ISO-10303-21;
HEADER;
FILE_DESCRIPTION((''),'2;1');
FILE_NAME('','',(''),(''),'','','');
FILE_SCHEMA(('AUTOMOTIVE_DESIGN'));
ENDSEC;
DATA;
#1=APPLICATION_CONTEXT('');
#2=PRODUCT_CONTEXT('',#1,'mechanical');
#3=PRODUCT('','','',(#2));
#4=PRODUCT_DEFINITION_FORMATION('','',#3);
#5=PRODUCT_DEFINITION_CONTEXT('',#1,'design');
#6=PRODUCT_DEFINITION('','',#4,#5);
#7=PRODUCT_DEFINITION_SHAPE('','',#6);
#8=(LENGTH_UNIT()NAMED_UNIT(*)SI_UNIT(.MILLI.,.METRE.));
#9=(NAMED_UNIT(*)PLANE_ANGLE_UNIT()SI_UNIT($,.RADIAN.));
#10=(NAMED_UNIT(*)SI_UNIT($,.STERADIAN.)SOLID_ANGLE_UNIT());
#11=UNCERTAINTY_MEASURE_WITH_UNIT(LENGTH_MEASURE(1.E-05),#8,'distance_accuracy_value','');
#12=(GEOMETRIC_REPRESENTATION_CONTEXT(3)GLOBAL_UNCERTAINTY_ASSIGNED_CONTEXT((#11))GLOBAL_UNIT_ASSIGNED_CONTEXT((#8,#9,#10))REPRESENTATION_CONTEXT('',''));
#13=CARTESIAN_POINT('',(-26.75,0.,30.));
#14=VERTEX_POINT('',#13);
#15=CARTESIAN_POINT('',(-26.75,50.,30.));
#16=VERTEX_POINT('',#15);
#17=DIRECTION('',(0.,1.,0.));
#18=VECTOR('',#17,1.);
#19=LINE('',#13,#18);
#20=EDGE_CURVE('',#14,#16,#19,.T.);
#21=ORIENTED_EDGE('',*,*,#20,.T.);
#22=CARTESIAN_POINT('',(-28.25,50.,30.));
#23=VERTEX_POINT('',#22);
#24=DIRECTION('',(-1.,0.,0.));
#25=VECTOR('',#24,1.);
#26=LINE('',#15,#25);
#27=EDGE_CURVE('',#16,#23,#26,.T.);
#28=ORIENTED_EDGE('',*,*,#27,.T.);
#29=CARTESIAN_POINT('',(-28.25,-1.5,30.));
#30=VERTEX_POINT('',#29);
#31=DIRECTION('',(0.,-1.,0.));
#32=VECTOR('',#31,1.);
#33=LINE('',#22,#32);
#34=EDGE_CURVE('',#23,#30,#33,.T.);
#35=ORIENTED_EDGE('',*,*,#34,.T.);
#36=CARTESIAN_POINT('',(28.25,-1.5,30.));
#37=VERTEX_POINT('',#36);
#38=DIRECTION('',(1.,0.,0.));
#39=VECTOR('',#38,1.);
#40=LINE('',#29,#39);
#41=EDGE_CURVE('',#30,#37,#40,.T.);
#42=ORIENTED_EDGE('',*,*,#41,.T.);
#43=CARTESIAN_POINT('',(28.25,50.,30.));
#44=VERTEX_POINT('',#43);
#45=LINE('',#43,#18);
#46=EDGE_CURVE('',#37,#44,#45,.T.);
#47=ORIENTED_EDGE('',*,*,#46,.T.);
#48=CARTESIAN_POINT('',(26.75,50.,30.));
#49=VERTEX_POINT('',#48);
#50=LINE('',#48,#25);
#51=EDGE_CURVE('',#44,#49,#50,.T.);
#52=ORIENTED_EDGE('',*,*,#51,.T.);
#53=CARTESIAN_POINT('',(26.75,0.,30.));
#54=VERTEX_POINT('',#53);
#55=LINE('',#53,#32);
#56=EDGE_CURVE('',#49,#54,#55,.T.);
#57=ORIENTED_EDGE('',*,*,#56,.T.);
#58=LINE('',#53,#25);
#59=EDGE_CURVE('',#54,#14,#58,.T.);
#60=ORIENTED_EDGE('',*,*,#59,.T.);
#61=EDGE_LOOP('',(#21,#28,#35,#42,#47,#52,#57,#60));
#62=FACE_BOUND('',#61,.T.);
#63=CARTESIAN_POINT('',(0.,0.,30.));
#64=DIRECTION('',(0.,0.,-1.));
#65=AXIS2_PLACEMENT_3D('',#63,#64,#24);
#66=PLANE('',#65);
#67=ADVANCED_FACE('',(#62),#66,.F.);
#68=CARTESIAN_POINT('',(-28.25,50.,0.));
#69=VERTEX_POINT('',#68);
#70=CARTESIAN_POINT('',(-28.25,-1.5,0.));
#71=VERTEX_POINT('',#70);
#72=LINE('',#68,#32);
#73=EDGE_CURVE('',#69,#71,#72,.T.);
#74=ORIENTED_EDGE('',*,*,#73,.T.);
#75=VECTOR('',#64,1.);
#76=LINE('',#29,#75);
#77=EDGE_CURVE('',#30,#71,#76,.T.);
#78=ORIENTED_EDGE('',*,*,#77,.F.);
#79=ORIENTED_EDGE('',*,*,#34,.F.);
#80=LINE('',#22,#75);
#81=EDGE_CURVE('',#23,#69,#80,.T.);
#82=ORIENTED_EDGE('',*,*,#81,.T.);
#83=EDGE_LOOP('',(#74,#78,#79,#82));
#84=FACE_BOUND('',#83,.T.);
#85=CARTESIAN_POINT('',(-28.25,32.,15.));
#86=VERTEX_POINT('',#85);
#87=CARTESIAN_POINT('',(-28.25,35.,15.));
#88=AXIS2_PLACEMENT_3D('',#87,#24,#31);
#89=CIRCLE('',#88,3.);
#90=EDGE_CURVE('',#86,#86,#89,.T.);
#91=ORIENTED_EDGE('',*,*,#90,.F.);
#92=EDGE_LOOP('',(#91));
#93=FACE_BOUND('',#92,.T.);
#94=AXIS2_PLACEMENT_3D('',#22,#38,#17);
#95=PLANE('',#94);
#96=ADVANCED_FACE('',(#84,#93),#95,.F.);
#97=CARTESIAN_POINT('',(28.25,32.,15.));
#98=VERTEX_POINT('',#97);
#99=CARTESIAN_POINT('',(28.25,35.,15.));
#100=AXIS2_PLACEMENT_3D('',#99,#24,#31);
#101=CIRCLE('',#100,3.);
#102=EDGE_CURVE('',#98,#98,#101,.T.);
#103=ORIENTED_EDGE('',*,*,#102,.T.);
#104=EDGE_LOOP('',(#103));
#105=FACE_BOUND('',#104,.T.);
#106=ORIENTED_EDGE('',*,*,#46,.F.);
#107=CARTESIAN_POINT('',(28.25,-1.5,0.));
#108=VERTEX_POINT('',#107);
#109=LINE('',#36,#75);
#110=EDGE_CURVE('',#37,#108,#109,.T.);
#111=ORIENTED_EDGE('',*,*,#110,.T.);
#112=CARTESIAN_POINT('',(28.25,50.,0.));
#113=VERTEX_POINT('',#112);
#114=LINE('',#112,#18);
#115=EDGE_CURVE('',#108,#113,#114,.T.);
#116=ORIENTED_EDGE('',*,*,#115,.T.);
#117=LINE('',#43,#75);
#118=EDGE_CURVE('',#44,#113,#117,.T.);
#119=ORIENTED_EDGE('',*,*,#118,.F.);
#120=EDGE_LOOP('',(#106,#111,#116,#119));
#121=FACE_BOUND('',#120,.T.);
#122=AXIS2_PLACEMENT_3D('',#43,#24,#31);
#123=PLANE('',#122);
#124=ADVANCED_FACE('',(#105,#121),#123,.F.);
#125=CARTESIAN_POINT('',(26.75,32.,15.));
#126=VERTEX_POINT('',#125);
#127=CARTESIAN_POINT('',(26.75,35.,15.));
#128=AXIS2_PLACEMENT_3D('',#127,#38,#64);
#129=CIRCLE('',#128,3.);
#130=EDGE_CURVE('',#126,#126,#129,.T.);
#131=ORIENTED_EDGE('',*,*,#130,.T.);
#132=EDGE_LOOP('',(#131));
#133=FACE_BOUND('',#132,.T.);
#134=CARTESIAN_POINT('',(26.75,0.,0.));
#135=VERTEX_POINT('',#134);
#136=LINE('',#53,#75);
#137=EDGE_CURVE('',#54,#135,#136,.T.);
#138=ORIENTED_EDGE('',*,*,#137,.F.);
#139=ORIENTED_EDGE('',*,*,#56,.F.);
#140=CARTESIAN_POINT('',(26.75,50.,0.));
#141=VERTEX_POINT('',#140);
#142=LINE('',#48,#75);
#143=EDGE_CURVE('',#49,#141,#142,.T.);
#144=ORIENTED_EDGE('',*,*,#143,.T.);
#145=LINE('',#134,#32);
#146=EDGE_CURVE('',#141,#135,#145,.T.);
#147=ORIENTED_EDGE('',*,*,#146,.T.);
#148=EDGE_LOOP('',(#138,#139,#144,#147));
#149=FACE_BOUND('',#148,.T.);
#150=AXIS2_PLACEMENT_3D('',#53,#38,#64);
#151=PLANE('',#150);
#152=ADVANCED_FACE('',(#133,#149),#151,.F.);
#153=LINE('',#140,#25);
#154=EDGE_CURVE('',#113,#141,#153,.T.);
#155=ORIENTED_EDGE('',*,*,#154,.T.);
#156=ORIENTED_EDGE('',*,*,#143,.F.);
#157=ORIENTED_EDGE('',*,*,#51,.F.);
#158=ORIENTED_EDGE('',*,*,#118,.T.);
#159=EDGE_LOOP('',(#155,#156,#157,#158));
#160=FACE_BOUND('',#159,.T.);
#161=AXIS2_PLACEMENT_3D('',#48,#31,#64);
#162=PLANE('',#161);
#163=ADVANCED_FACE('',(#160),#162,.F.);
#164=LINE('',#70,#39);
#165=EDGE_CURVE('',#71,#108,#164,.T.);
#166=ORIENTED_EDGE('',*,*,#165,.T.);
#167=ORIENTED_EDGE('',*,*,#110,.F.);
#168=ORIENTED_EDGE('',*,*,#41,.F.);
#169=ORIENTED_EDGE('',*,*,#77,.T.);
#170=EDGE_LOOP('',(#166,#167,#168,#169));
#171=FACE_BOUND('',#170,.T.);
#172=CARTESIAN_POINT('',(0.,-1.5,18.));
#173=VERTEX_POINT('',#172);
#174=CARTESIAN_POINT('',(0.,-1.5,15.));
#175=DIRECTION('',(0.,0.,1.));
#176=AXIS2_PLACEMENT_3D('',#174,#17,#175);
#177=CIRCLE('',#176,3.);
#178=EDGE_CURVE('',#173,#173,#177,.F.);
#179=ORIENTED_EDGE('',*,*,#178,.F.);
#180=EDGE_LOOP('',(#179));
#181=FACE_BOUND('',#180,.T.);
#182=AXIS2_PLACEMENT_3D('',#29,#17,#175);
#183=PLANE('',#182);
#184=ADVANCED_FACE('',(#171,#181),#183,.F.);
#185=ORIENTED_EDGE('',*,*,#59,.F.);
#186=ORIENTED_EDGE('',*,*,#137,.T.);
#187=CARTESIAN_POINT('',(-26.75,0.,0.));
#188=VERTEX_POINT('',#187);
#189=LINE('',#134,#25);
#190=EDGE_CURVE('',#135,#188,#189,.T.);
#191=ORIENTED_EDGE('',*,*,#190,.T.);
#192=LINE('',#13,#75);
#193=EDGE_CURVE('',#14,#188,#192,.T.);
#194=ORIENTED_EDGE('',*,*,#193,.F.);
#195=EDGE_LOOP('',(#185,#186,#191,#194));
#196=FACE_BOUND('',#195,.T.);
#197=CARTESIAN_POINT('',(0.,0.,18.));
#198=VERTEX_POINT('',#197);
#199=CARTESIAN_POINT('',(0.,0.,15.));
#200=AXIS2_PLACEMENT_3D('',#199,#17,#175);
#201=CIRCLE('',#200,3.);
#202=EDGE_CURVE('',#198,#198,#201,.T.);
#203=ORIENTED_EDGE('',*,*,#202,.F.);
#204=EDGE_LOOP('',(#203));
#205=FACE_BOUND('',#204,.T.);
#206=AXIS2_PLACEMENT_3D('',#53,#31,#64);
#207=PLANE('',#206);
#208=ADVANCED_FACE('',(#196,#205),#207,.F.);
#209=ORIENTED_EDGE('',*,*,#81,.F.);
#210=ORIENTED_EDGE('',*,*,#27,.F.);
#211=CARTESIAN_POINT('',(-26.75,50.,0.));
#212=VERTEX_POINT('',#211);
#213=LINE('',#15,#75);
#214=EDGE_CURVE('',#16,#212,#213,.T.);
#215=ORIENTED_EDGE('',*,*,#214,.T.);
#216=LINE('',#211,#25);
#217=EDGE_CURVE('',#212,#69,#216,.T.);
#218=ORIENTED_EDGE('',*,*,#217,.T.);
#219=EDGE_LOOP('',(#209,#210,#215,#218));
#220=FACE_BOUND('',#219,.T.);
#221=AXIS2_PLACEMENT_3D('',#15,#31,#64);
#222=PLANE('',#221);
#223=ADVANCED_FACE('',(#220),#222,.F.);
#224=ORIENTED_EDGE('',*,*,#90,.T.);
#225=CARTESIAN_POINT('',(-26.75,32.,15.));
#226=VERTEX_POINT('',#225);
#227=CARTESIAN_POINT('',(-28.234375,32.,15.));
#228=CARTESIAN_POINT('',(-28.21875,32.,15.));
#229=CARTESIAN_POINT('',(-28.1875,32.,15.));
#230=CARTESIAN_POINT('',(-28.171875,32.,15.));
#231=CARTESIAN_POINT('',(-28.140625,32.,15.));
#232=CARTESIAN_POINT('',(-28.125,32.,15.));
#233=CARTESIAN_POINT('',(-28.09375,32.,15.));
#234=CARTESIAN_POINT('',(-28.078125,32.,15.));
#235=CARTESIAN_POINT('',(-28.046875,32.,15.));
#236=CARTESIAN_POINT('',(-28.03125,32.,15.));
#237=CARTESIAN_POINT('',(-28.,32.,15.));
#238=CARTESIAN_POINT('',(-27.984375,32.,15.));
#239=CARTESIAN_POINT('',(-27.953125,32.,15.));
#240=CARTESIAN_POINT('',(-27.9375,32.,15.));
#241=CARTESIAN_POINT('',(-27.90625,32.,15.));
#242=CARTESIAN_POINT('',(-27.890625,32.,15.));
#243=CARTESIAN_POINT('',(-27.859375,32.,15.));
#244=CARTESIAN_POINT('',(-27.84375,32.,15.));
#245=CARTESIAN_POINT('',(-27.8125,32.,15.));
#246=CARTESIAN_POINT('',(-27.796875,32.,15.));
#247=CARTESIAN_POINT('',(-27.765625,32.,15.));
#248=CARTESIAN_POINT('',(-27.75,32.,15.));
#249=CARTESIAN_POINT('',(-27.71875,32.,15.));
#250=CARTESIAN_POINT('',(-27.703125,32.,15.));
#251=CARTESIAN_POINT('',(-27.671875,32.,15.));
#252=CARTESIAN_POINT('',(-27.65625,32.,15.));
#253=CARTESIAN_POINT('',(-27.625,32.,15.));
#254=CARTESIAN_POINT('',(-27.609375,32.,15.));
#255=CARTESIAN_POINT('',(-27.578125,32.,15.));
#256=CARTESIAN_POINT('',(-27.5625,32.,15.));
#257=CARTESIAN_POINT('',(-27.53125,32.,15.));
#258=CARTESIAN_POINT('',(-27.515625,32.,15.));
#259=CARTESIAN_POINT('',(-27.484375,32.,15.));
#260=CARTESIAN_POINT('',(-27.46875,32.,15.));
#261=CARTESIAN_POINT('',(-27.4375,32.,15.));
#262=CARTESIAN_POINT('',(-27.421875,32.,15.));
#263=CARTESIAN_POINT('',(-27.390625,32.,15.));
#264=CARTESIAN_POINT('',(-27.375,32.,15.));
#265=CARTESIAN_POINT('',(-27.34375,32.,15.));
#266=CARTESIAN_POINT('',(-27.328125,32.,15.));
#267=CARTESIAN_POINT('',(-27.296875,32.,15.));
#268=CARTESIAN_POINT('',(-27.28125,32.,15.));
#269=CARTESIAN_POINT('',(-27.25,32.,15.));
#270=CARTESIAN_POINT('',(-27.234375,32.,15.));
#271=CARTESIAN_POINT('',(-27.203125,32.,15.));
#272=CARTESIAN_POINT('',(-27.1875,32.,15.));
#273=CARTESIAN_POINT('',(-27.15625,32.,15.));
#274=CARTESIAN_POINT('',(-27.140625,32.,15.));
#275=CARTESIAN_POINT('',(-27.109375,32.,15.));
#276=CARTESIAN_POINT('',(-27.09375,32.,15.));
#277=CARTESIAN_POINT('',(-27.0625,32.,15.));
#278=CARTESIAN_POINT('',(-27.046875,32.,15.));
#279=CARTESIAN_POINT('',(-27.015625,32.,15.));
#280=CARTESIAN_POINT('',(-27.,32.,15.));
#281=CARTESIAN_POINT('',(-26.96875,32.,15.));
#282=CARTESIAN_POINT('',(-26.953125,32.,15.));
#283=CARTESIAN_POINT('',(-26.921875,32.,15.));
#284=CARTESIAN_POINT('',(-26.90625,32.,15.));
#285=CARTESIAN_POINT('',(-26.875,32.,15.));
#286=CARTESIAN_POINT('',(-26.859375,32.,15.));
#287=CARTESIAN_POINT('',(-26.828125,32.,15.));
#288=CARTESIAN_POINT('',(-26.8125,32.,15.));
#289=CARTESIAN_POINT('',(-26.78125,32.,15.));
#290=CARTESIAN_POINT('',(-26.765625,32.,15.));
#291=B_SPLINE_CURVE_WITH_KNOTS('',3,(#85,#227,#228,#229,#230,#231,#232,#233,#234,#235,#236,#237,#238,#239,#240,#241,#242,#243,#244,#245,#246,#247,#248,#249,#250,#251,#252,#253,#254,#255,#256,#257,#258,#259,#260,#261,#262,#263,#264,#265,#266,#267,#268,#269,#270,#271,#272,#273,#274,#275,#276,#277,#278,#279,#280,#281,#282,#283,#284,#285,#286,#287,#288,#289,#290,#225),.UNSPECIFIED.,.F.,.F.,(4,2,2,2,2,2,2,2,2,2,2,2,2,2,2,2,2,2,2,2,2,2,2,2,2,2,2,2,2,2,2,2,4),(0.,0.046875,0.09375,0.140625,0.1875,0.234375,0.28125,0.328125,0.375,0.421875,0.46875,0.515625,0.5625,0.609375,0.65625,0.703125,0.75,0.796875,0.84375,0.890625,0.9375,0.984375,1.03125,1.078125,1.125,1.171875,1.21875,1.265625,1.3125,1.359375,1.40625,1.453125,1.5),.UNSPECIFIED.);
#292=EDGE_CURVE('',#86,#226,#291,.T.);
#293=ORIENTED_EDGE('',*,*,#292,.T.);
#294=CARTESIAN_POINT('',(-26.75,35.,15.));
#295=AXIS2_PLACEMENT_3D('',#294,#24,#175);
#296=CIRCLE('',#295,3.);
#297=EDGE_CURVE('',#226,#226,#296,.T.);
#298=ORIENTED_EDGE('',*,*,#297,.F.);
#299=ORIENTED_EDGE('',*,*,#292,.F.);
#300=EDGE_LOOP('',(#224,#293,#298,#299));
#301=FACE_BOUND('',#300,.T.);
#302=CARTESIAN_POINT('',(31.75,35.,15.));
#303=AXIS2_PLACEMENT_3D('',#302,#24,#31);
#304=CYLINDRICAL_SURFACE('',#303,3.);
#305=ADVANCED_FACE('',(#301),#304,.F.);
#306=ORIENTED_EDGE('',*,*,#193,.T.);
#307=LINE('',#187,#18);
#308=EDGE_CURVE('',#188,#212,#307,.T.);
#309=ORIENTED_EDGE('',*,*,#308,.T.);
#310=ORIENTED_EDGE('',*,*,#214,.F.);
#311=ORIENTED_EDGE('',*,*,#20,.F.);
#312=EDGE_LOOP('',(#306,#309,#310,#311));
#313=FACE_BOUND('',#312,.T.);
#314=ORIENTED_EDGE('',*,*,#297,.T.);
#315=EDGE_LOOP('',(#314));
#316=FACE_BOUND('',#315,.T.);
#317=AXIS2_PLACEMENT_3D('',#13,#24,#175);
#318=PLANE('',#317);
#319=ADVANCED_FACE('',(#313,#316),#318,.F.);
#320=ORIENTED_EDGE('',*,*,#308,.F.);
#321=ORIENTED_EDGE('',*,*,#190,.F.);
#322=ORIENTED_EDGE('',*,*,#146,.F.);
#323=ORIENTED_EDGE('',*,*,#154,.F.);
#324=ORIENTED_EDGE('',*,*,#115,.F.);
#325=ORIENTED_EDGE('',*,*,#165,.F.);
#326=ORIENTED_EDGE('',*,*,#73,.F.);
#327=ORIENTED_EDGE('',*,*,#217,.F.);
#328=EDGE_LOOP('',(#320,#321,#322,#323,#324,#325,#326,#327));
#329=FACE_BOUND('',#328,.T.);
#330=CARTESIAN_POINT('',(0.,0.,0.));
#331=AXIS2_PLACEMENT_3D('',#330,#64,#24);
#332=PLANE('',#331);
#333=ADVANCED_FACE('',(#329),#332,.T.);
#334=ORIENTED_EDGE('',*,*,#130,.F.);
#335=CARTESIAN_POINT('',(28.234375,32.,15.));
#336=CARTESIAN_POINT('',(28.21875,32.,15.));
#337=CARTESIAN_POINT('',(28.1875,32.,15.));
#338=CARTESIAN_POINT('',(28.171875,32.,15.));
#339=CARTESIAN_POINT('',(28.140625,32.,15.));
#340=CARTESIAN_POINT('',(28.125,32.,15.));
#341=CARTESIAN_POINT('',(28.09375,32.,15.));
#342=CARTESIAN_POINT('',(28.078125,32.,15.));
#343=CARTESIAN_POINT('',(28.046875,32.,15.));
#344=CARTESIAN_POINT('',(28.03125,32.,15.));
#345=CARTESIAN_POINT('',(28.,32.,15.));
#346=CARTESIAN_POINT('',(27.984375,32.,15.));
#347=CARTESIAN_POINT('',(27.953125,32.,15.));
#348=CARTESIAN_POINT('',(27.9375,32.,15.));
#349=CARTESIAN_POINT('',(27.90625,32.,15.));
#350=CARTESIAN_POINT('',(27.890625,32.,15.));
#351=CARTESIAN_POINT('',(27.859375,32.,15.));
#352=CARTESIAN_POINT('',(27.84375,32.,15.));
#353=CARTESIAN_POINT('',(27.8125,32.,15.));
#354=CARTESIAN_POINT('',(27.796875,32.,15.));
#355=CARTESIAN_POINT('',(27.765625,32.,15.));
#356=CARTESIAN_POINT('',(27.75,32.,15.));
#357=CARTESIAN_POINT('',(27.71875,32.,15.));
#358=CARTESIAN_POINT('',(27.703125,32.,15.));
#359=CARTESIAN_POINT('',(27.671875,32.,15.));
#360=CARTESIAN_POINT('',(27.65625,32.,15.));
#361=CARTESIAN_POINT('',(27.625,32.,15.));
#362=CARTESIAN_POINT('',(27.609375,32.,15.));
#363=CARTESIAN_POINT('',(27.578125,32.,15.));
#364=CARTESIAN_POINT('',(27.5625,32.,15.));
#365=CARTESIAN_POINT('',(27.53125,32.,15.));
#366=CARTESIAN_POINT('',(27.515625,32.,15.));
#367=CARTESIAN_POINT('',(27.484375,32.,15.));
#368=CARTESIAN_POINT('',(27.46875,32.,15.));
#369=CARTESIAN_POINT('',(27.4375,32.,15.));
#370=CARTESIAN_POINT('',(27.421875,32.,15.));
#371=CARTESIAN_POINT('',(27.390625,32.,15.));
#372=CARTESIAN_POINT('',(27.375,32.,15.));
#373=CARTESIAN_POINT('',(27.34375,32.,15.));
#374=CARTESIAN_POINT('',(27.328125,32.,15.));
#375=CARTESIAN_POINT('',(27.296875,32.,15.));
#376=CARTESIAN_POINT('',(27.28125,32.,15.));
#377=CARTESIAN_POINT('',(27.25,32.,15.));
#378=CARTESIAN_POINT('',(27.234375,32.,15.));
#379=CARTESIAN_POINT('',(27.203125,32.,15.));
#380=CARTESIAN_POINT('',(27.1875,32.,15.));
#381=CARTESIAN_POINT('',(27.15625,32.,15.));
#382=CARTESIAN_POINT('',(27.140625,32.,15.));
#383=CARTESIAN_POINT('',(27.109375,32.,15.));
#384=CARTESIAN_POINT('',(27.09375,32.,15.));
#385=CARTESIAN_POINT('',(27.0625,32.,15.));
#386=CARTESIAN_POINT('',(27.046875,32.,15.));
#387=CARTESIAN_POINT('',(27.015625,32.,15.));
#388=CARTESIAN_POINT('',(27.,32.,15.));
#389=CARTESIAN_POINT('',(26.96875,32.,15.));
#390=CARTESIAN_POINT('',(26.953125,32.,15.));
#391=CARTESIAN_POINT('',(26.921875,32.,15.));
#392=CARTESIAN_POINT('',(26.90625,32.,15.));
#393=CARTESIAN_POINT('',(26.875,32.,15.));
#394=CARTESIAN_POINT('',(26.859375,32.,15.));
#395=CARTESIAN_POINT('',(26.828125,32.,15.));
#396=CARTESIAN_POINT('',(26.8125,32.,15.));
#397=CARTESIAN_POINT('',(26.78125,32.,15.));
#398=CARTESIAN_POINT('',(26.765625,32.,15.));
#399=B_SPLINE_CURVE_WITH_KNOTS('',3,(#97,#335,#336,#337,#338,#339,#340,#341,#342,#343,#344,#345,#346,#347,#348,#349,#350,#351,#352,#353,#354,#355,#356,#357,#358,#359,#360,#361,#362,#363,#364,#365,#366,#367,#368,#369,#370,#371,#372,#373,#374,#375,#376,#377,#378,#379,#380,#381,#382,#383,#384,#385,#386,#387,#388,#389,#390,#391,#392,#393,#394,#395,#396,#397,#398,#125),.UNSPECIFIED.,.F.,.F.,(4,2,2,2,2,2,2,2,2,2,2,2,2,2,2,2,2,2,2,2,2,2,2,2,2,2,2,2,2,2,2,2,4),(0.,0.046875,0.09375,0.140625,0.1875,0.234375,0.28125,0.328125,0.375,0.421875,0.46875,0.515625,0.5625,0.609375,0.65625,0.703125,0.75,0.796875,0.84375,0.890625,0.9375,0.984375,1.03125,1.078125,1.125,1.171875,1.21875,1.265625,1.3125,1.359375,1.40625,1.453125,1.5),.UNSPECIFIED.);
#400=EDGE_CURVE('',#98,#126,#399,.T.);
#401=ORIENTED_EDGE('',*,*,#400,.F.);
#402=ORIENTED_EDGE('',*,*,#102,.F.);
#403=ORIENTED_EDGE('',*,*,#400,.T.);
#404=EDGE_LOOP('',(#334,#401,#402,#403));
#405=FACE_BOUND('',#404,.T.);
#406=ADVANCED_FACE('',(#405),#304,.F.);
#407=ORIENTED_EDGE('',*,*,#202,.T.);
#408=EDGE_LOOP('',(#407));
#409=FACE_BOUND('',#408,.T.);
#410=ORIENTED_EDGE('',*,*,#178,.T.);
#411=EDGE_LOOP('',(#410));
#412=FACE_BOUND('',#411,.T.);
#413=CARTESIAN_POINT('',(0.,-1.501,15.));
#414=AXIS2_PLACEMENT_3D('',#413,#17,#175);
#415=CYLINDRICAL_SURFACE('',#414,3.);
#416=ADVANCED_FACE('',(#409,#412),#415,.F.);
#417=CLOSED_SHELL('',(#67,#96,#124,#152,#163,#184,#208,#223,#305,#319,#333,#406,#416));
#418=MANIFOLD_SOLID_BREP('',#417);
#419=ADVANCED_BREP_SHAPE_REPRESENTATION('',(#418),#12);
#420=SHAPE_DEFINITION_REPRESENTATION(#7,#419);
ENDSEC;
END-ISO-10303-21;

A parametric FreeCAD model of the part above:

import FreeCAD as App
import Part
import Sketcher

V = App.Vector
Q = App.Units.Quantity

doc = App.newDocument("Part")
body = doc.addObject("PartDesign::Body", "Body")

sketch1 = doc.addObject("Sketcher::SketchObject", "Sketch")
body.addObject(sketch1)
sketch1.AttachmentSupport = (doc.XY_Plane, [""])
sketch1.MapMode = "FlatFace"
sketch1.addGeometry([
    Part.LineSegment(V(26.8, 0, 0), V(-26.8, 0, 0)),
    Part.LineSegment(V(-26.8, 0, 0), V(-26.8, 50, 0)),
    Part.LineSegment(V(-26.8, 50, 0), V(-28.2, 50, 0)),
    Part.LineSegment(V(-28.2, 50, 0), V(-28.2, -1.5, 0)),
    Part.LineSegment(V(-28.2, -1.5, 0), V(28.2, -1.5, 0)),
    Part.LineSegment(V(28.2, -1.5, 0), V(28.2, 50, 0)),
    Part.LineSegment(V(28.2, 50, 0), V(26.8, 50, 0)),
    Part.LineSegment(V(26.8, 50, 0), V(26.8, 0, 0)),
], False)
sketch1.addConstraint([
    Sketcher.Constraint("Coincident", 0, 2, 1, 1),
    Sketcher.Constraint("Coincident", 1, 2, 2, 1),
    Sketcher.Constraint("Coincident", 2, 2, 3, 1),
    Sketcher.Constraint("Coincident", 3, 2, 4, 1),
    Sketcher.Constraint("Coincident", 4, 2, 5, 1),
    Sketcher.Constraint("Coincident", 5, 2, 6, 1),
    Sketcher.Constraint("Coincident", 6, 2, 7, 1),
    Sketcher.Constraint("Coincident", 7, 2, 0, 1),
    Sketcher.Constraint("Horizontal", 0),
    Sketcher.Constraint("Vertical", 1),
    Sketcher.Constraint("Horizontal", 2),
    Sketcher.Constraint("Vertical", 3),
    Sketcher.Constraint("Horizontal", 4),
    Sketcher.Constraint("Vertical", 5),
    Sketcher.Constraint("Horizontal", 6),
    Sketcher.Constraint("Vertical", 7),
    Sketcher.Constraint("Symmetric", 0, 2, 7, 2, -1, 1),
    Sketcher.Constraint("Symmetric", 2, 2, 5, 2, -2),
    Sketcher.Constraint("DistanceY", 1, 1, 1, 2, Q("50 mm")),
    Sketcher.Constraint("DistanceX", 0, 2, 0, 1, Q("53.5 mm")),
    Sketcher.Constraint("DistanceX", 2, 2, 2, 1, Q("1.5 mm")),
    Sketcher.Constraint("DistanceY", 3, 2, 3, 1, Q("51.5 mm")),
])
pad1 = doc.addObject("PartDesign::Pad", "Pad")
body.addObject(pad1)
pad1.Profile = sketch1
pad1.Length = 30

sketch2 = doc.addObject("Sketcher::SketchObject", "Sketch001")
body.addObject(sketch2)
sketch2.AttachmentSupport = (doc.YZ_Plane, [""])
sketch2.MapMode = "FlatFace"
sketch2.AttachmentOffset = App.Placement(V(0, 0, -28.25), App.Rotation())
sketch2.addGeometry(Part.Circle(V(35, 15, 0), V(0, 0, 1), 3), False)
sketch2.addConstraint([
    Sketcher.Constraint("Diameter", 0, Q("6 mm")),
    Sketcher.Constraint("DistanceX", -1, 1, 0, 3, Q("35 mm")),
    Sketcher.Constraint("DistanceY", -1, 1, 0, 3, Q("15 mm")),
])
pocket1 = doc.addObject("PartDesign::Pocket", "Pocket")
body.addObject(pocket1)
pocket1.Profile = sketch2
pocket1.Length = 60
pocket1.Reversed = True

sketch3 = doc.addObject("Sketcher::SketchObject", "Sketch002")
body.addObject(sketch3)
sketch3.AttachmentSupport = (doc.XZ_Plane, [""])
sketch3.MapMode = "FlatFace"
sketch3.addGeometry(Part.Circle(V(0, 15, 0), V(0, 0, 1), 3), False)
sketch3.addConstraint([
    Sketcher.Constraint("PointOnObject", 0, 3, -2),
    Sketcher.Constraint("Diameter", 0, Q("6 mm")),
    Sketcher.Constraint("DistanceY", -1, 1, 0, 3, Q("15 mm")),
])
pocket2 = doc.addObject("PartDesign::Pocket", "Pocket001")
body.addObject(pocket2)
pocket2.Profile = sketch3
pocket2.Type = "UpToFirst"
pocket2.Reversed = True

doc.recompute()
